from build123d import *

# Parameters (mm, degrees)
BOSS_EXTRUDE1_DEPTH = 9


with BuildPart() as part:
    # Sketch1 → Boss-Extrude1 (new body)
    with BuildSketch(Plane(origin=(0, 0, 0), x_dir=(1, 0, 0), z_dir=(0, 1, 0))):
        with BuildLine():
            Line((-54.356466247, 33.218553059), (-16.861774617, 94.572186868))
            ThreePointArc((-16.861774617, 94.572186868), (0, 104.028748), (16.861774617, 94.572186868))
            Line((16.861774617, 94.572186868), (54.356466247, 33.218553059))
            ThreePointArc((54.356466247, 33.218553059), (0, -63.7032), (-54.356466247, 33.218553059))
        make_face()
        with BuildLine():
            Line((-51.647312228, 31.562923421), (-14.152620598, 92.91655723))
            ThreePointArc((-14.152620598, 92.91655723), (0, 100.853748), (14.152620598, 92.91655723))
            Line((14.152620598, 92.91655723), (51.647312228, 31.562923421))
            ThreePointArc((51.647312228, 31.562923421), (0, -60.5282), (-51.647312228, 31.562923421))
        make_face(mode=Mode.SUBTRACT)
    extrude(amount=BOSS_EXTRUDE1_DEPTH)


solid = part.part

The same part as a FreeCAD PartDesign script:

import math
import FreeCAD as App
import Part
import Sketcher
from FreeCAD import Vector
Q = App.Units.Quantity

doc = App.newDocument("Part")
params = doc.addObject("Spreadsheet::Sheet", "Params")
for row, (alias, value) in enumerate([
    ("sketch1_radius", "2.508 in"),
    ("sketch1_radius2", "0.778 in"),
    ("sketch1_radius3", "0.653 in"),
    ("pad1_length", "9 mm"),
], start=1):
    params.set(f"A{row}", alias)
    params.set(f"B{row}", "=" + value)
    params.setAlias(f"B{row}", alias)

body = doc.addObject("PartDesign::Body", "Body")

# Sketch on XZ plane
sketch1 = body.newObject("Sketcher::SketchObject", "Sketch")
sketch1.AttachmentSupport = (doc.getObject("XZ_Plane"), [""])
sketch1.MapMode = "FlatFace"
sketch1.addGeometry(Part.LineSegment(Vector(-17, -95, 0), Vector(-54, -33, 0)), False)
sketch1.addGeometry(Part.ArcOfCircle(Part.Circle(Vector(0, 0, 0), Vector(0, 0, 1), 64), math.radians(-31), math.radians(211)), False)
sketch1.addGeometry(Part.LineSegment(Vector(54, -33, 0), Vector(17, -95, 0)), False)
sketch1.addGeometry(Part.ArcOfCircle(Part.Circle(Vector(0, -84, 0), Vector(0, 0, 1), 20), math.radians(-149), math.radians(-31)), False)
sketch1.addGeometry(Part.LineSegment(Vector(-52, -32, 0), Vector(-14, -93, 0)), False)
sketch1.addGeometry(Part.ArcOfCircle(Part.Circle(Vector(0, -84, 0), Vector(0, 0, 1), 17), math.radians(-149), math.radians(-31)), False)
sketch1.addGeometry(Part.LineSegment(Vector(14, -93, 0), Vector(52, -32, 0)), False)
sketch1.addGeometry(Part.ArcOfCircle(Part.Circle(Vector(0, 0, 0), Vector(0, 0, 1), 61), math.radians(-31), math.radians(211)), False)
sketch1.addConstraint(Sketcher.Constraint("Tangent", 0, 2, 1, 2))
sketch1.addConstraint(Sketcher.Constraint("Tangent", 1, 1, 2, 1))
sketch1.addConstraint(Sketcher.Constraint("Tangent", 2, 2, 3, 2))
sketch1.addConstraint(Sketcher.Constraint("Tangent", 3, 1, 0, 1))
sketch1.addConstraint(Sketcher.Constraint("Tangent", 4, 2, 5, 1))
sketch1.addConstraint(Sketcher.Constraint("Tangent", 5, 2, 6, 1))
sketch1.addConstraint(Sketcher.Constraint("Tangent", 6, 2, 7, 1))
sketch1.addConstraint(Sketcher.Constraint("Tangent", 7, 2, 4, 1))
sketch1.addConstraint(Sketcher.Constraint("Coincident", 1, 3, -1, 1))
sketch1.addConstraint(Sketcher.Constraint("Coincident", 7, 3, -1, 1))
sketch1.addConstraint(Sketcher.Constraint("Coincident", 5, 3, 3, 3))
sketch1.addConstraint(Sketcher.Constraint("PointOnObject", 3, 3, -2))
sketch1.addConstraint(Sketcher.Constraint("Parallel", 0, 4))
sketch1.addConstraint(Sketcher.Constraint("Radius", 1, Q("2.508 in")))
sketch1.addConstraint(Sketcher.Constraint("Radius", 3, Q("0.778 in")))
sketch1.addConstraint(Sketcher.Constraint("Radius", 5, Q("0.653 in")))
sketch1.addConstraint(Sketcher.Constraint("Distance", 0, Q("71.903548 mm")))
sketch1.setExpression("Constraints[13]", "Params.sketch1_radius")
sketch1.setExpression("Constraints[14]", "Params.sketch1_radius2")
sketch1.setExpression("Constraints[15]", "Params.sketch1_radius3")
pad1 = body.newObject("PartDesign::Pad", "Pad")
pad1.Profile = sketch1
pad1.setExpression("Length", "Params.pad1_length")
pad1.Reversed = True

doc.recompute()
